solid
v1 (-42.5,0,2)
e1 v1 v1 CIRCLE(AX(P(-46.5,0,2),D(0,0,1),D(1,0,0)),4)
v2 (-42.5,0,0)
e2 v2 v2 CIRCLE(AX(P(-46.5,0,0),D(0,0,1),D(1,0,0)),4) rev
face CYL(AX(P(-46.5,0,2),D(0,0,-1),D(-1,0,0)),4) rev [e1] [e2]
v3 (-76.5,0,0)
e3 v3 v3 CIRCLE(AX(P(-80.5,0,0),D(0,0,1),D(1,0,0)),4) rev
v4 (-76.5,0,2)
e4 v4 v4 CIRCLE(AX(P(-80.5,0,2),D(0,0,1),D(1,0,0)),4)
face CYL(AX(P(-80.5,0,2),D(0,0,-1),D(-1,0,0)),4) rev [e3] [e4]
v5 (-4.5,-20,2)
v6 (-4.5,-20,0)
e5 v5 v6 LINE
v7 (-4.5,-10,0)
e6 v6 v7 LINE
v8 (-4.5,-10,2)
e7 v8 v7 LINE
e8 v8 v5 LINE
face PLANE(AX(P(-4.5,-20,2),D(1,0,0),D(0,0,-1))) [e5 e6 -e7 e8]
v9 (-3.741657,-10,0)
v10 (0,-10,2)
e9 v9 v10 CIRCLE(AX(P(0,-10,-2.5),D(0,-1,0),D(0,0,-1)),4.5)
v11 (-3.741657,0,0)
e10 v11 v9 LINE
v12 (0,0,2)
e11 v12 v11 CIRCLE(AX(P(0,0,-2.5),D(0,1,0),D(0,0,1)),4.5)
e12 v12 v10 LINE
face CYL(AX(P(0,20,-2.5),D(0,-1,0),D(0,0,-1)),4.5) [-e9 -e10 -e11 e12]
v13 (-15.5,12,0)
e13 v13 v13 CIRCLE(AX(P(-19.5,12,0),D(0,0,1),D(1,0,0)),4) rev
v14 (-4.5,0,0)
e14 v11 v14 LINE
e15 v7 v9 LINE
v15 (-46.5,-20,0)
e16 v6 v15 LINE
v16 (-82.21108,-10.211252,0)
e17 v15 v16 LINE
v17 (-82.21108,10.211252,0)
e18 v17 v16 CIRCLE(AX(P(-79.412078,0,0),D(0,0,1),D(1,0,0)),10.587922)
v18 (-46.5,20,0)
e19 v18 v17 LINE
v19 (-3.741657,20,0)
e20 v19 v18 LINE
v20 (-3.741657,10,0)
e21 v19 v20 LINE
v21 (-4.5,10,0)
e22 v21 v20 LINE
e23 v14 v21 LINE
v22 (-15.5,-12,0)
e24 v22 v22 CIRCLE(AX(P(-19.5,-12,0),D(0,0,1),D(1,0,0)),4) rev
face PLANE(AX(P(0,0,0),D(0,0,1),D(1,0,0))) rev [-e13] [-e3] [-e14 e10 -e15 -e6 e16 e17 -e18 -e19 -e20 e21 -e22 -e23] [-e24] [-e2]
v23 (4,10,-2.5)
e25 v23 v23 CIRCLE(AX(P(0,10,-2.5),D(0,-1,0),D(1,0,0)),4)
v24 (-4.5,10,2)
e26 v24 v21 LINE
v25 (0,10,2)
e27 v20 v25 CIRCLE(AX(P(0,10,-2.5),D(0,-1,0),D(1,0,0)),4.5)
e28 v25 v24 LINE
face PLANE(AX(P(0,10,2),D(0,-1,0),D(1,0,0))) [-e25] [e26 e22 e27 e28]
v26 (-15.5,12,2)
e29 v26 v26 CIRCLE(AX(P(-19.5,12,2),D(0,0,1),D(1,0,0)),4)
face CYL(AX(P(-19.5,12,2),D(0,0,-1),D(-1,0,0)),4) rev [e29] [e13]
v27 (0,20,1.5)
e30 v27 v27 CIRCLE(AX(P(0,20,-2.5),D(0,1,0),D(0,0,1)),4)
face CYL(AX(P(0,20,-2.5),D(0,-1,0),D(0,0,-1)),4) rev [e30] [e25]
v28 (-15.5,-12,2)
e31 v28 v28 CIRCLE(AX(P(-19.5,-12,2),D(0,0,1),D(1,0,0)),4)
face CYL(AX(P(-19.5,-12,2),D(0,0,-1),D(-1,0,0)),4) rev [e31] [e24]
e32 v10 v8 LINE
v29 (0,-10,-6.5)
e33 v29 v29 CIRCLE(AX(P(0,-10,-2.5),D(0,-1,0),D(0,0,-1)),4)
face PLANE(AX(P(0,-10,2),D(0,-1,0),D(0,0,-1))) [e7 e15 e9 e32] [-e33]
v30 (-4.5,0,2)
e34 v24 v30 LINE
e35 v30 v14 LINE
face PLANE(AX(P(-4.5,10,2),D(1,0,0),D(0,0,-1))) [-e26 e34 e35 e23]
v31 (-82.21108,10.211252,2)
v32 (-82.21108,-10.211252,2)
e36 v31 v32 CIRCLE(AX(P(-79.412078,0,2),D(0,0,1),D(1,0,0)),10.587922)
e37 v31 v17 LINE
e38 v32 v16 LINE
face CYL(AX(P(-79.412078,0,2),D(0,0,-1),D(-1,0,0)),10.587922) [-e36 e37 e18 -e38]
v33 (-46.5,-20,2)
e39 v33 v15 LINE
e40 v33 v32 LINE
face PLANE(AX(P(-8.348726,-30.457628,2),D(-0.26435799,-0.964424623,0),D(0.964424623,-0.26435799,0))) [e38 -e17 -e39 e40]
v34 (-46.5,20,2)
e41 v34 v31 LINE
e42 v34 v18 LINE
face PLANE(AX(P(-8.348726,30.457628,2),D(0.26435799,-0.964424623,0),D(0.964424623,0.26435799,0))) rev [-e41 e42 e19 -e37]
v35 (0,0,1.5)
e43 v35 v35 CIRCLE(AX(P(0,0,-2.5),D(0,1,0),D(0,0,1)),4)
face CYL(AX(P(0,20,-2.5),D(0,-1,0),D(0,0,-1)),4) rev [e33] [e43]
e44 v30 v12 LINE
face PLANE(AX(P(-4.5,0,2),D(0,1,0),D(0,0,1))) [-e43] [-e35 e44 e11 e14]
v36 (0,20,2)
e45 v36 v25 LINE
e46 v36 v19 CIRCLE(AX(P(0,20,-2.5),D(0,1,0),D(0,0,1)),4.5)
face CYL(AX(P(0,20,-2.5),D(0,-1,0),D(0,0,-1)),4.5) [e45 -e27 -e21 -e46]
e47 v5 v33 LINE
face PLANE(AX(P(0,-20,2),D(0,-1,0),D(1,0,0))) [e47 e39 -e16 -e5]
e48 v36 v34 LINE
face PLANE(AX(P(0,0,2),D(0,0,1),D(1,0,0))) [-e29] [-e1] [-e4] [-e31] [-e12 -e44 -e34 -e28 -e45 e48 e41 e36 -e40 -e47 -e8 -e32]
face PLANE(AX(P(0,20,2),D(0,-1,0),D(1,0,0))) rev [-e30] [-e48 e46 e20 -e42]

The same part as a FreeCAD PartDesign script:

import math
import FreeCAD as App
import Part
import Sketcher
from FreeCAD import Vector

doc = App.newDocument("Part")
body = doc.addObject("PartDesign::Body", "Body")

sketch1 = body.newObject("Sketcher::SketchObject", "Sketch")
sketch1.AttachmentSupport = (doc.getObject("XY_Plane"), [""])
sketch1.MapMode = "FlatFace"
sketch1.addGeometry(Part.LineSegment(Vector(-4, 20, 0), Vector(-46.5, 20, 0)), False)
sketch1.addGeometry(Part.LineSegment(Vector(-46.5, 20, 0), Vector(-82.21108, 10.211252, 0)), False)
sketch1.addGeometry(Part.ArcOfCircle(Part.Circle(Vector(-79.412078, 0, 0), Vector(0, 0, 1), 10.587922), math.radians(105.328808), math.radians(254.671192)), False)
sketch1.addGeometry(Part.LineSegment(Vector(-82.21108, -10.211252, 0), Vector(-46.5, -20, 0)), False)
sketch1.addGeometry(Part.LineSegment(Vector(-46.5, -20, 0), Vector(-4, -20, 0)), False)
sketch1.addGeometry(Part.LineSegment(Vector(-4, -20, 0), Vector(-4, 20, 0)), False)
sketch1.addConstraint(Sketcher.Constraint("Coincident", 0, 2, 1, 1))
sketch1.addConstraint(Sketcher.Constraint("Tangent", 1, 2, 2, 1))
sketch1.addConstraint(Sketcher.Constraint("Tangent", 2, 2, 3, 1))
sketch1.addConstraint(Sketcher.Constraint("Coincident", 3, 2, 4, 1))
sketch1.addConstraint(Sketcher.Constraint("Coincident", 4, 2, 5, 1))
sketch1.addConstraint(Sketcher.Constraint("Coincident", 5, 2, 0, 1))
sketch1.addConstraint(Sketcher.Constraint("Horizontal", 0))
sketch1.addConstraint(Sketcher.Constraint("Horizontal", 4))
sketch1.addConstraint(Sketcher.Constraint("Vertical", 5))
sketch1.addConstraint(Sketcher.Constraint("Symmetric", 1, 2, 2, 2, -1))
sketch1.addConstraint(Sketcher.Constraint("Vertical", 0, 2, 3, 2))
sketch1.addConstraint(Sketcher.Constraint("DistanceY", 5, 1, 5, 2, 40.0))
sketch1.addConstraint(Sketcher.Constraint("DistanceX", 0, 2, 0, 1, 42.5))
sketch1.addConstraint(Sketcher.Constraint("DistanceX", 4, 2, -1, 1, 4.0))
sketch1.addConstraint(Sketcher.Constraint("Radius", 2, 10.587922))
sketch1.addConstraint(Sketcher.Constraint("DistanceX", 1, 2, 2, 3, 2.799002))
pad1 = body.newObject("PartDesign::Pad", "Pad")
pad1.Profile = sketch1
pad1.Length = 2

sketch2 = body.newObject("Sketcher::SketchObject", "Sketch001")
sketch2.AttachmentSupport = (doc.getObject("XZ_Plane"), [""])
sketch2.MapMode = "FlatFace"
sketch2.addGeometry(Part.LineSegment(Vector(-3.741657, 0, 0), Vector(-4, 0, 0)), False)
sketch2.addGeometry(Part.LineSegment(Vector(-4, 0, 0), Vector(-4, 2, 0)), False)
sketch2.addGeometry(Part.LineSegment(Vector(-4, 2, 0), Vector(0, 2, 0)), False)
sketch2.addGeometry(Part.ArcOfCircle(Part.Circle(Vector(0, -2.5, 0), Vector(0, 0, 1), 4.5), math.radians(146.251011), math.radians(450)), False)
sketch2.addGeometry(Part.Circle(Vector(0, -2.5, 0), Vector(0, 0, 1), 4), False)
sketch2.addConstraint(Sketcher.Constraint("Coincident", 0, 2, 1, 1))
sketch2.addConstraint(Sketcher.Constraint("Coincident", 1, 2, 2, 1))
sketch2.addConstraint(Sketcher.Constraint("Tangent", 2, 2, 3, 2))
sketch2.addConstraint(Sketcher.Constraint("Coincident", 3, 1, 0, 1))
sketch2.addConstraint(Sketcher.Constraint("Horizontal", 0))
sketch2.addConstraint(Sketcher.Constraint("Vertical", 1))
sketch2.addConstraint(Sketcher.Constraint("Horizontal", 2))
sketch2.addConstraint(Sketcher.Constraint("Coincident", 4, 3, 3, 3))
sketch2.addConstraint(Sketcher.Constraint("PointOnObject", 3, 3, -2))
sketch2.addConstraint(Sketcher.Constraint("PointOnObject", 0, 2, -1))
sketch2.addConstraint(Sketcher.Constraint("Diameter", 4, 8.0))
sketch2.addConstraint(Sketcher.Constraint("Radius", 3, 4.5))
sketch2.addConstraint(Sketcher.Constraint("DistanceX", 2, 1, 2, 2, 4.0))
sketch2.addConstraint(Sketcher.Constraint("DistanceY", 1, 1, 1, 2, 2.0))
pad2 = body.newObject("PartDesign::Pad", "Pad001")
pad2.Profile = sketch2
pad2.Length = 40
pad2.Midplane = True

sketch3 = body.newObject("Sketcher::SketchObject", "Sketch002")
sketch3.AttachmentSupport = (doc.getObject("XY_Plane"), [""])
sketch3.MapMode = "FlatFace"
sketch3.addGeometry(Part.Circle(Vector(-19.5, -12, 0), Vector(0, 0, 1), 4), False)
sketch3.addGeometry(Part.Circle(Vector(-19.5, 12, 0), Vector(0, 0, 1), 4), False)
sketch3.addGeometry(Part.Circle(Vector(-46.5, 0, 0), Vector(0, 0, 1), 4), False)
sketch3.addGeometry(Part.Circle(Vector(-80.5, 0, 0), Vector(0, 0, 1), 4), False)
sketch3.addGeometry(Part.LineSegment(Vector(4.5, 10, 0), Vector(-4.5, 10, 0)), False)
sketch3.addGeometry(Part.LineSegment(Vector(-4.5, 10, 0), Vector(-4.5, 0, 0)), False)
sketch3.addGeometry(Part.LineSegment(Vector(-4.5, 0, 0), Vector(4.5, 0, 0)), False)
sketch3.addGeometry(Part.LineSegment(Vector(4.5, 0, 0), Vector(4.5, 10, 0)), False)
sketch3.addGeometry(Part.LineSegment(Vector(4.5, -10, 0), Vector(-4.5, -10, 0)), False)
sketch3.addGeometry(Part.LineSegment(Vector(-4.5, -10, 0), Vector(-4.5, -20, 0)), False)
sketch3.addGeometry(Part.LineSegment(Vector(-4.5, -20, 0), Vector(4.5, -20, 0)), False)
sketch3.addGeometry(Part.LineSegment(Vector(4.5, -20, 0), Vector(4.5, -10, 0)), False)
sketch3.addConstraint(Sketcher.Constraint("Coincident", 4, 2, 5, 1))
sketch3.addConstraint(Sketcher.Constraint("Coincident", 5, 2, 6, 1))
sketch3.addConstraint(Sketcher.Constraint("Coincident", 6, 2, 7, 1))
sketch3.addConstraint(Sketcher.Constraint("Coincident", 7, 2, 4, 1))
sketch3.addConstraint(Sketcher.Constraint("Coincident", 8, 2, 9, 1))
sketch3.addConstraint(Sketcher.Constraint("Coincident", 9, 2, 10, 1))
sketch3.addConstraint(Sketcher.Constraint("Coincident", 10, 2, 11, 1))
sketch3.addConstraint(Sketcher.Constraint("Coincident", 11, 2, 8, 1))
sketch3.addConstraint(Sketcher.Constraint("Horizontal", 4))
sketch3.addConstraint(Sketcher.Constraint("Vertical", 5))
sketch3.addConstraint(Sketcher.Constraint("Horizontal", 6))
sketch3.addConstraint(Sketcher.Constraint("Vertical", 7))
sketch3.addConstraint(Sketcher.Constraint("Horizontal", 8))
sketch3.addConstraint(Sketcher.Constraint("Vertical", 9))
sketch3.addConstraint(Sketcher.Constraint("Horizontal", 10))
sketch3.addConstraint(Sketcher.Constraint("Vertical", 11))
sketch3.addConstraint(Sketcher.Constraint("Equal", 0, 1))
sketch3.addConstraint(Sketcher.Constraint("Equal", 1, 2))
sketch3.addConstraint(Sketcher.Constraint("Equal", 2, 3))
sketch3.addConstraint(Sketcher.Constraint("Symmetric", 5, 2, 6, 2, -1, 1))
sketch3.addConstraint(Sketcher.Constraint("Symmetric", 7, 2, 8, 2, -1, 1))
sketch3.addConstraint(Sketcher.Constraint("Symmetric", 0, 3, 1, 3, -1))
sketch3.addConstraint(Sketcher.Constraint("PointOnObject", 2, 3, -1))
sketch3.addConstraint(Sketcher.Constraint("PointOnObject", 3, 3, -1))
sketch3.addConstraint(Sketcher.Constraint("Vertical", 7, 2, 10, 2))
sketch3.addConstraint(Sketcher.Constraint("Equal", 7, 9))
sketch3.addConstraint(Sketcher.Constraint("Diameter", 0, 8.0))
sketch3.addConstraint(Sketcher.Constraint("DistanceX", 4, 2, 4, 1, 9.0))
sketch3.addConstraint(Sketcher.Constraint("DistanceY", 5, 2, 5, 1, 10.0))
sketch3.addConstraint(Sketcher.Constraint("DistanceY", 0, 3, -1, 1, 12.0))
sketch3.addConstraint(Sketcher.Constraint("DistanceX", 2, 3, 0, 3, 27.0))
sketch3.addConstraint(Sketcher.Constraint("DistanceX", 3, 3, 2, 3, 34.0))
sketch3.addConstraint(Sketcher.Constraint("DistanceX", 1, 3, 4, 2, 15.0))
pocket1 = body.newObject("PartDesign::Pocket", "Pocket")
pocket1.Profile = sketch3
pocket1.Type = "ThroughAll"
pocket1.Midplane = True

doc.recompute()
